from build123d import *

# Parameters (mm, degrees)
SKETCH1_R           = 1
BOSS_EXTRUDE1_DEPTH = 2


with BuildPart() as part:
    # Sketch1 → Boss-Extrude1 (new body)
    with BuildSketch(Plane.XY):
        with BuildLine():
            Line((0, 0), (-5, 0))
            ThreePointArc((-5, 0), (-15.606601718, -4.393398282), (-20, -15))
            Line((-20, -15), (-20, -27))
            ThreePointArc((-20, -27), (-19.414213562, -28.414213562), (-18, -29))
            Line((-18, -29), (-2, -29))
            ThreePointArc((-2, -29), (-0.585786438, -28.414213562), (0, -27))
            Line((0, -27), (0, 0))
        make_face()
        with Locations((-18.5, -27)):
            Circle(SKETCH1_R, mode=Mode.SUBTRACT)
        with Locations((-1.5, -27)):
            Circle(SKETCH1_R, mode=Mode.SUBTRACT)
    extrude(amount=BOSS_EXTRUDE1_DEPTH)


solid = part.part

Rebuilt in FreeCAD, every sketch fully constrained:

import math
import FreeCAD as App
import Part
import Sketcher

V = App.Vector

doc = App.newDocument("Part")
body = doc.addObject("PartDesign::Body", "Body")

sketch1 = body.newObject("Sketcher::SketchObject", "Sketch")
sketch1.AttachmentSupport = (doc.getObject("XY_Plane"), [""])
sketch1.MapMode = "FlatFace"
sketch1.addGeometry([
    Part.LineSegment(V(0, 0, 0), V(-5, 0, 0)),
    Part.ArcOfCircle(Part.Circle(V(-5, -15, 0), V(0, 0, 1), 15), math.radians(90), math.radians(180)),
    Part.LineSegment(V(-20, -15, 0), V(-20, -27, 0)),
    Part.ArcOfCircle(Part.Circle(V(-18, -27, 0), V(0, 0, 1), 2), math.radians(-180), math.radians(-90)),
    Part.LineSegment(V(-18, -29, 0), V(-2, -29, 0)),
    Part.ArcOfCircle(Part.Circle(V(-2, -27, 0), V(0, 0, 1), 2), math.radians(-90), math.radians(0)),
    Part.LineSegment(V(0, -27, 0), V(0, 0, 0)),
    Part.Circle(V(-18.5, -27, 0), V(0, 0, 1), 1),
    Part.Circle(V(-1.5, -27, 0), V(0, 0, 1), 1),
], False)
sketch1.addConstraint([
    Sketcher.Constraint("Tangent", 0, 2, 1, 1),
    Sketcher.Constraint("Tangent", 1, 2, 2, 1),
    Sketcher.Constraint("Tangent", 2, 2, 3, 1),
    Sketcher.Constraint("Tangent", 3, 2, 4, 1),
    Sketcher.Constraint("Tangent", 4, 2, 5, 1),
    Sketcher.Constraint("Tangent", 5, 2, 6, 1),
    Sketcher.Constraint("Coincident", 6, 2, 0, 1),
    Sketcher.Constraint("Horizontal", 0),
    Sketcher.Constraint("Vertical", 2),
    Sketcher.Constraint("Horizontal", 4),
    Sketcher.Constraint("Vertical", 6),
    Sketcher.Constraint("Coincident", 6, 2, -1, 1),
    Sketcher.Constraint("Equal", 3, 5),
    Sketcher.Constraint("Equal", 7, 8),
    Sketcher.Constraint("Horizontal", 5, 3, 7, 3),
    Sketcher.Constraint("Horizontal", 7, 3, 8, 3),
    Sketcher.Constraint("Diameter", 7, 2.0),
    Sketcher.Constraint("Radius", 1, 15.0),
    Sketcher.Constraint("Radius", 3, 2.0),
    Sketcher.Constraint("DistanceX", 0, 2, 0, 1, 5.0),
    Sketcher.Constraint("DistanceY", 2, 2, 2, 1, 12.0),
    Sketcher.Constraint("DistanceX", 7, 3, 8, 3, 17.0),
    Sketcher.Constraint("DistanceX", 7, 3, -1, 1, 18.5),
])
pad1 = body.newObject("PartDesign::Pad", "Pad")
pad1.Profile = sketch1
pad1.Length = 2

doc.recompute()
